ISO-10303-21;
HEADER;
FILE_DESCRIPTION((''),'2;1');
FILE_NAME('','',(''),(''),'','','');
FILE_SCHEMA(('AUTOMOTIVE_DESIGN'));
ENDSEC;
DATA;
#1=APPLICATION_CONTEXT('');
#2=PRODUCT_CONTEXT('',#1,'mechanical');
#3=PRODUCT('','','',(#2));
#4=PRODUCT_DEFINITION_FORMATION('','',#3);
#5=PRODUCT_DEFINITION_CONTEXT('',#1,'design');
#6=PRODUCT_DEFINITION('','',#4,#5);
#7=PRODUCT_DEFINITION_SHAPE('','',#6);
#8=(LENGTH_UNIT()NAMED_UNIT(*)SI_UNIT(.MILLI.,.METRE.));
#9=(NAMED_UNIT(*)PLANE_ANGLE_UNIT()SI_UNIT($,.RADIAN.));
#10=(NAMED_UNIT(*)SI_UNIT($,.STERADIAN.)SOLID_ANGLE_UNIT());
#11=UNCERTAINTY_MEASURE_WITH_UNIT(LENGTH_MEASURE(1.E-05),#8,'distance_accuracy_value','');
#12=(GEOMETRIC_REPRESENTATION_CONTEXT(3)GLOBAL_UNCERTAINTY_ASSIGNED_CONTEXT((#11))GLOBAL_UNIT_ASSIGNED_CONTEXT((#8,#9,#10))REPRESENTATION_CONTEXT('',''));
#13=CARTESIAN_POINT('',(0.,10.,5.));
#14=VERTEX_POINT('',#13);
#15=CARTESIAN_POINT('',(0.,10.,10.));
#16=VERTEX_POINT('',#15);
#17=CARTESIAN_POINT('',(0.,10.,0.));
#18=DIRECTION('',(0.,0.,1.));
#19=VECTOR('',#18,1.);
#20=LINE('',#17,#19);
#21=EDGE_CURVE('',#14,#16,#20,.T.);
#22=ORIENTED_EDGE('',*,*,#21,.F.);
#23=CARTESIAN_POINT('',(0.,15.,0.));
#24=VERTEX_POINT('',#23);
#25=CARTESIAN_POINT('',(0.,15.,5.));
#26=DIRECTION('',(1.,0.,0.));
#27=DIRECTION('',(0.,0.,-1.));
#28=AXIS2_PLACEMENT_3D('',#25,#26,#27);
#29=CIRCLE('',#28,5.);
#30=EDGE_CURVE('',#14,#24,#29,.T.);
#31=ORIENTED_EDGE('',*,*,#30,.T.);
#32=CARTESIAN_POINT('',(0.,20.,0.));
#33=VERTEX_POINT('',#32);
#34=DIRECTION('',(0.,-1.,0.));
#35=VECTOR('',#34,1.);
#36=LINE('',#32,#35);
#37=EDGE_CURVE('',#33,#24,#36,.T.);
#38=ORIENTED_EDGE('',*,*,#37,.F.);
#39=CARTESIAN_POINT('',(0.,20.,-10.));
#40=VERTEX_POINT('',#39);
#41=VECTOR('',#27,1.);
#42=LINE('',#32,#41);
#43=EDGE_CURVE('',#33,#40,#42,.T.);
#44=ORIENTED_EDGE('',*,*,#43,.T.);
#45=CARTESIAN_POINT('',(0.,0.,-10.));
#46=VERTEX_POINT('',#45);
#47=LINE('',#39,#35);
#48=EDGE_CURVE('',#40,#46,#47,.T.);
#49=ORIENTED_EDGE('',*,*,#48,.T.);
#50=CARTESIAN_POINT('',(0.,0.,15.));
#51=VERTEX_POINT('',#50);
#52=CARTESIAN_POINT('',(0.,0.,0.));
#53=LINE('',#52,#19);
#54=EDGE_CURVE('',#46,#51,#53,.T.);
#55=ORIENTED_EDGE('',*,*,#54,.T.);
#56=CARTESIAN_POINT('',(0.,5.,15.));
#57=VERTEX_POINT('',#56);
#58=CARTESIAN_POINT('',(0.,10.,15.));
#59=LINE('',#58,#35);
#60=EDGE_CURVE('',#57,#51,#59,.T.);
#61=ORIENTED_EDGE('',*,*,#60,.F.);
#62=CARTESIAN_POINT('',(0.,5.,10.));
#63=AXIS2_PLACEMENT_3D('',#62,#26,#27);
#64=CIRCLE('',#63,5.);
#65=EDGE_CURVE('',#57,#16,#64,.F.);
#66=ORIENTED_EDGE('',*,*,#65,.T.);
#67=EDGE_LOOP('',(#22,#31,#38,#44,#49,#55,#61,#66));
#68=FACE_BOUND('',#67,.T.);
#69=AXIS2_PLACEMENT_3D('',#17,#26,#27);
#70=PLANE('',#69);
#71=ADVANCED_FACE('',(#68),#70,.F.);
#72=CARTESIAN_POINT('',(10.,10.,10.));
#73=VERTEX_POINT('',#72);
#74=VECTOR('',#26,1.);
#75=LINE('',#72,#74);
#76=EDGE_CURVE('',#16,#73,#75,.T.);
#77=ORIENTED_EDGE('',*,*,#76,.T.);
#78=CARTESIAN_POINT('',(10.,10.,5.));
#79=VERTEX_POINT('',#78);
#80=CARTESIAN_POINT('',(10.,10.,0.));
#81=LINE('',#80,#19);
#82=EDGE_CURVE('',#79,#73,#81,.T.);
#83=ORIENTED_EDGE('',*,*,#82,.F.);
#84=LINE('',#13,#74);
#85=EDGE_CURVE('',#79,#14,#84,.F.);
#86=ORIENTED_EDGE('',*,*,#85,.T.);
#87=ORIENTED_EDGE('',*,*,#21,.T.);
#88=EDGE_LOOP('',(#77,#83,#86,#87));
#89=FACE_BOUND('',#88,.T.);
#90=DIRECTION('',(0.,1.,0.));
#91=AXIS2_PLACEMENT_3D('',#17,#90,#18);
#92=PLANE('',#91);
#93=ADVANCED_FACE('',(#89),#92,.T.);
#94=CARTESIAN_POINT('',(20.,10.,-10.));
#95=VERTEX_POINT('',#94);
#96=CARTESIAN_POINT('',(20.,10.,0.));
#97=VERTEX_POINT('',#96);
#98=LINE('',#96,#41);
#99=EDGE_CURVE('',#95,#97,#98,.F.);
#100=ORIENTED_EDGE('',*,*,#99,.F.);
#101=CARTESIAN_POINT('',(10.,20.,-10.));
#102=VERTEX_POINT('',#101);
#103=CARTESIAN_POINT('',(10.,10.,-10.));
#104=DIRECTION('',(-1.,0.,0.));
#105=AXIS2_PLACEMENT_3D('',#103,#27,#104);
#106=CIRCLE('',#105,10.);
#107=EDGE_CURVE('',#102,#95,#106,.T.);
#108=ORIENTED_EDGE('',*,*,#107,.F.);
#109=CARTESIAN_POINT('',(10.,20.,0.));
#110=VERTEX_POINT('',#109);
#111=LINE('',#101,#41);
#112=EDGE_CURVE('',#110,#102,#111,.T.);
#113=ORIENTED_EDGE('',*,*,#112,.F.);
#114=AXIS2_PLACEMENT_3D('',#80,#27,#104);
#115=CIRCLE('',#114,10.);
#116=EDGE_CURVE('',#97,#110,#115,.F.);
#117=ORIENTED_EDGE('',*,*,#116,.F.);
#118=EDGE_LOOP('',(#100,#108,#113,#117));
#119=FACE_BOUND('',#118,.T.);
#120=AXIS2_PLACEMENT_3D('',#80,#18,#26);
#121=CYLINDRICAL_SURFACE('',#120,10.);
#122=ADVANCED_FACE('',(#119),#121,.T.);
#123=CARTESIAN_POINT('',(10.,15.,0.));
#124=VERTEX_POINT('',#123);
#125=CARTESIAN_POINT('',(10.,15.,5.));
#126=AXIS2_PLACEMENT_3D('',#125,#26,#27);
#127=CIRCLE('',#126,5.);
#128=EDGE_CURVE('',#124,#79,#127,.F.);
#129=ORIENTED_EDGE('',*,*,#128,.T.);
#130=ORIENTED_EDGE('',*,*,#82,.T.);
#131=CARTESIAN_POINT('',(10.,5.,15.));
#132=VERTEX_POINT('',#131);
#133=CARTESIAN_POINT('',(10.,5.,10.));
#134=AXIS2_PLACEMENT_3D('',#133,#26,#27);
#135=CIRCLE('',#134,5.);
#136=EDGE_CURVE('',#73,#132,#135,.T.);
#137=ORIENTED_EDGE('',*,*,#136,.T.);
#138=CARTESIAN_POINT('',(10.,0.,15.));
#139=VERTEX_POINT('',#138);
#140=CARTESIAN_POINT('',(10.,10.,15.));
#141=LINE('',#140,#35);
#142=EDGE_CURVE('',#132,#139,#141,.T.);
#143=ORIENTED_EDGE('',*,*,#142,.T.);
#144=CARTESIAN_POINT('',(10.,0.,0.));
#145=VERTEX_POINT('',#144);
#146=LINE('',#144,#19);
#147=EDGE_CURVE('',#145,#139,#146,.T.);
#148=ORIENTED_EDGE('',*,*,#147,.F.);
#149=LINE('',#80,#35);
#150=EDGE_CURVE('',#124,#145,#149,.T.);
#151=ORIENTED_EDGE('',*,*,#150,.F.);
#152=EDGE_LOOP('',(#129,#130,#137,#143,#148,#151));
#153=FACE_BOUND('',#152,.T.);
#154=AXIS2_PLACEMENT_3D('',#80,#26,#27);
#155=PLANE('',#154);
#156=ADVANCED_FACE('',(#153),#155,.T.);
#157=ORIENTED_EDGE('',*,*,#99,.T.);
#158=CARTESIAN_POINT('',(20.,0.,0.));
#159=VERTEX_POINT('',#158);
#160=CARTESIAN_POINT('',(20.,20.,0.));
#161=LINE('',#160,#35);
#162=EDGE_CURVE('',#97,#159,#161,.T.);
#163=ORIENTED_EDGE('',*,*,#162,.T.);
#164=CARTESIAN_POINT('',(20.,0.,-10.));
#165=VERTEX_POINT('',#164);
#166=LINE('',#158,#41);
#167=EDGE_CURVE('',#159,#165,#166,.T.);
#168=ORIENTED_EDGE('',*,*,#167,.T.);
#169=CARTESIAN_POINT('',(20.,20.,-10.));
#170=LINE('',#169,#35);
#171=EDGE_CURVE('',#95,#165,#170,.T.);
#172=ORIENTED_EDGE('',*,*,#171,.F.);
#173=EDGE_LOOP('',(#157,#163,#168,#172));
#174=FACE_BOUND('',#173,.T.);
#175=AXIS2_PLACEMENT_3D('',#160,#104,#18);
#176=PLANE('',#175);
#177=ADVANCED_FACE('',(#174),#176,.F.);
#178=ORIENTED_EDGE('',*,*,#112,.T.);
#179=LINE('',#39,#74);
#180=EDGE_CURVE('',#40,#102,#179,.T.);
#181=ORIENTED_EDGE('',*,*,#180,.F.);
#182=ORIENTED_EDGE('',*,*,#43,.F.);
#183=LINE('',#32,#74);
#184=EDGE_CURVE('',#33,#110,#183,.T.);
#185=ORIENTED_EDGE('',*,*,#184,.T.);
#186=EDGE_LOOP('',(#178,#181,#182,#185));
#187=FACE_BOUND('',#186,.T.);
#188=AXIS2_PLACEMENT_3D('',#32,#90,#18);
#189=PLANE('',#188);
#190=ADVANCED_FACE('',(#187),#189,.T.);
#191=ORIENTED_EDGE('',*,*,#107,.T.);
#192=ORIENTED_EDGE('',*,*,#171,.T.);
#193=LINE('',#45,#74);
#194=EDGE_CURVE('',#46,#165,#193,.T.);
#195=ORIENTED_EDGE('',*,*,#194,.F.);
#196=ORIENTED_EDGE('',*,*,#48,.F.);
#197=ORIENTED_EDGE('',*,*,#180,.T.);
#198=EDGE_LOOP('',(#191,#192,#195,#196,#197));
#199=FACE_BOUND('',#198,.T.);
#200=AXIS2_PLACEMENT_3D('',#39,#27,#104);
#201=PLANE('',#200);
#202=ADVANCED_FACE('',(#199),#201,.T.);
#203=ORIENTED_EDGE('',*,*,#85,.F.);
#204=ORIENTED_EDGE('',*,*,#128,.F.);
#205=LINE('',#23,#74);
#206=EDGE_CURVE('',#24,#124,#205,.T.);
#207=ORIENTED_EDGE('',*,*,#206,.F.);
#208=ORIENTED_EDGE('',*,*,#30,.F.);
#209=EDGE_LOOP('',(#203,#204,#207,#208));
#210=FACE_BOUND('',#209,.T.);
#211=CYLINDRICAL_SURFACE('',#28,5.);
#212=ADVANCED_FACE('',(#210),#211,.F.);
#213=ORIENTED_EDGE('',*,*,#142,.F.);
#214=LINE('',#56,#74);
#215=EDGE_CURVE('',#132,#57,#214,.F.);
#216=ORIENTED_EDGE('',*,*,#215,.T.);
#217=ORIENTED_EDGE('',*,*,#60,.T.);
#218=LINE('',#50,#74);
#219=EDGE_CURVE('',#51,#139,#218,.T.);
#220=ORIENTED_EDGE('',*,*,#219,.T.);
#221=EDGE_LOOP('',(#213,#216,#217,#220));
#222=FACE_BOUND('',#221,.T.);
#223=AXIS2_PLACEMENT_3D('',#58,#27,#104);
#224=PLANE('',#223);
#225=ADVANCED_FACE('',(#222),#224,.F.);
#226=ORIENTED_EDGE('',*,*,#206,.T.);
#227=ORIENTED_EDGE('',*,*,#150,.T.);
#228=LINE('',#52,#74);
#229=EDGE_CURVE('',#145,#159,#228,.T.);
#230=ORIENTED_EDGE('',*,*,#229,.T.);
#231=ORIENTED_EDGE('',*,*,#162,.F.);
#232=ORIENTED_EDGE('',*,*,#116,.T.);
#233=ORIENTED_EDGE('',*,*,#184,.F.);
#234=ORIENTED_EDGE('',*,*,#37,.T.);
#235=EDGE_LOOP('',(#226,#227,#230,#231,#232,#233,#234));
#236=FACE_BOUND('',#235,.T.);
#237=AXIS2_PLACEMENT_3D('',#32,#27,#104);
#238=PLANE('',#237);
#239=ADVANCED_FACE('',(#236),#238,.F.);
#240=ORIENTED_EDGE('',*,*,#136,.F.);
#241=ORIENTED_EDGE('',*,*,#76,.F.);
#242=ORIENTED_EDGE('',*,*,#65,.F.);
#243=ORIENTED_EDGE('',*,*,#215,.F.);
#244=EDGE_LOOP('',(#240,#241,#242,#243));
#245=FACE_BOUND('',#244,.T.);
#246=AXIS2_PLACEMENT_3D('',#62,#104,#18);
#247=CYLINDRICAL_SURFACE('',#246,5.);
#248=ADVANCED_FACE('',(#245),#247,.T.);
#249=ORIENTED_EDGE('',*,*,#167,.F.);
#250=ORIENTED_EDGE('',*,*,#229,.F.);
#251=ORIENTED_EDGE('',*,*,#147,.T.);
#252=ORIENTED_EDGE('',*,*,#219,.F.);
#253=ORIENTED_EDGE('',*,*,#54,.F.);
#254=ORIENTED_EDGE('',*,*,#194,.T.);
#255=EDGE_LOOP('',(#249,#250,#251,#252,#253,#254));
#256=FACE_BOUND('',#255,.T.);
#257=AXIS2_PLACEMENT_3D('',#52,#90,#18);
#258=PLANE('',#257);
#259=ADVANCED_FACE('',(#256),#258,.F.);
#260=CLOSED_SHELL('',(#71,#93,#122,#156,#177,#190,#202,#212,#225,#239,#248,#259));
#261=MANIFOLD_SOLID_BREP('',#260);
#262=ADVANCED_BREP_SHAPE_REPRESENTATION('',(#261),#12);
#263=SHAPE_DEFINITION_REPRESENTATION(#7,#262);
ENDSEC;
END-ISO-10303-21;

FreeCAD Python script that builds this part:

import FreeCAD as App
import Part
import Sketcher
from FreeCAD import Vector


def edges_at(feature, points):
    """Names of the edges that pass closest to the given points."""
    edges = feature.Shape.Edges
    near = lambda p: min(range(len(edges)), key=lambda i: edges[i].distToShape(Part.Vertex(*p))[0])
    return sorted({f"Edge{near(p) + 1}" for p in points})

doc = App.newDocument("Part")
body = doc.addObject("PartDesign::Body", "Body")

# Sketch on XZ plane
sketch1 = doc.addObject("Sketcher::SketchObject", "Sketch")
body.addObject(sketch1)
sketch1.AttachmentSupport = (doc.XZ_Plane, [""])
sketch1.MapMode = "FlatFace"
sketch1.addGeometry([
    Part.LineSegment(Vector(0, 0, 0), Vector(0, 15, 0)),
    Part.LineSegment(Vector(0, 15, 0), Vector(10, 15, 0)),
    Part.LineSegment(Vector(10, 15, 0), Vector(10, 0, 0)),
    Part.LineSegment(Vector(10, 0, 0), Vector(0, 0, 0)),
], False)
sketch1.addConstraint([
    Sketcher.Constraint("Coincident", 0, 2, 1, 1),
    Sketcher.Constraint("Coincident", 1, 2, 2, 1),
    Sketcher.Constraint("Coincident", 2, 2, 3, 1),
    Sketcher.Constraint("Coincident", 3, 2, 0, 1),
    Sketcher.Constraint("Vertical", 0),
    Sketcher.Constraint("Horizontal", 1),
    Sketcher.Constraint("Vertical", 2),
    Sketcher.Constraint("Horizontal", 3),
    Sketcher.Constraint("Coincident", 3, 2, -1, 1),
    Sketcher.Constraint("DistanceX", 1, 1, 1, 2, 10.0),
    Sketcher.Constraint("DistanceY", 0, 1, 0, 2, 15.0),
])
pad1 = doc.addObject("PartDesign::Pad", "Pad")
body.addObject(pad1)
pad1.Profile = sketch1
pad1.Length = 10
pad1.Reversed = True

# Sketch on XZ plane
sketch2 = doc.addObject("Sketcher::SketchObject", "Sketch001")
body.addObject(sketch2)
sketch2.AttachmentSupport = (doc.XZ_Plane, [""])
sketch2.MapMode = "FlatFace"
sketch2.addGeometry([
    Part.LineSegment(Vector(0, -10, 0), Vector(0, 0, 0)),
    Part.LineSegment(Vector(0, 0, 0), Vector(20, 0, 0)),
    Part.LineSegment(Vector(20, 0, 0), Vector(20, -10, 0)),
    Part.LineSegment(Vector(20, -10, 0), Vector(0, -10, 0)),
], False)
sketch2.addConstraint([
    Sketcher.Constraint("Coincident", 0, 2, 1, 1),
    Sketcher.Constraint("Coincident", 1, 2, 2, 1),
    Sketcher.Constraint("Coincident", 2, 2, 3, 1),
    Sketcher.Constraint("Coincident", 3, 2, 0, 1),
    Sketcher.Constraint("Vertical", 0),
    Sketcher.Constraint("Horizontal", 1),
    Sketcher.Constraint("Vertical", 2),
    Sketcher.Constraint("Horizontal", 3),
    Sketcher.Constraint("Coincident", 0, 2, -1, 1),
    Sketcher.Constraint("DistanceX", 1, 1, 1, 2, 20.0),
    Sketcher.Constraint("DistanceY", 0, 1, 0, 2, 10.0),
])
pad2 = doc.addObject("PartDesign::Pad", "Pad001")
body.addObject(pad2)
pad2.Profile = sketch2
pad2.Length = 20
pad2.Reversed = True
doc.recompute()

fillet = doc.addObject("PartDesign::Fillet", "Fillet")
body.addObject(fillet)
fillet.Base = (pad2, edges_at(pad2, [(5, 10, 15), (5, 10, 0)]))
fillet.Radius = 5
doc.recompute()

fillet2 = doc.addObject("PartDesign::Fillet", "Fillet001")
body.addObject(fillet2)
fillet2.Base = (fillet, edges_at(fillet, [(20, 20, -5)]))
fillet2.Radius = 10

doc.recompute()
